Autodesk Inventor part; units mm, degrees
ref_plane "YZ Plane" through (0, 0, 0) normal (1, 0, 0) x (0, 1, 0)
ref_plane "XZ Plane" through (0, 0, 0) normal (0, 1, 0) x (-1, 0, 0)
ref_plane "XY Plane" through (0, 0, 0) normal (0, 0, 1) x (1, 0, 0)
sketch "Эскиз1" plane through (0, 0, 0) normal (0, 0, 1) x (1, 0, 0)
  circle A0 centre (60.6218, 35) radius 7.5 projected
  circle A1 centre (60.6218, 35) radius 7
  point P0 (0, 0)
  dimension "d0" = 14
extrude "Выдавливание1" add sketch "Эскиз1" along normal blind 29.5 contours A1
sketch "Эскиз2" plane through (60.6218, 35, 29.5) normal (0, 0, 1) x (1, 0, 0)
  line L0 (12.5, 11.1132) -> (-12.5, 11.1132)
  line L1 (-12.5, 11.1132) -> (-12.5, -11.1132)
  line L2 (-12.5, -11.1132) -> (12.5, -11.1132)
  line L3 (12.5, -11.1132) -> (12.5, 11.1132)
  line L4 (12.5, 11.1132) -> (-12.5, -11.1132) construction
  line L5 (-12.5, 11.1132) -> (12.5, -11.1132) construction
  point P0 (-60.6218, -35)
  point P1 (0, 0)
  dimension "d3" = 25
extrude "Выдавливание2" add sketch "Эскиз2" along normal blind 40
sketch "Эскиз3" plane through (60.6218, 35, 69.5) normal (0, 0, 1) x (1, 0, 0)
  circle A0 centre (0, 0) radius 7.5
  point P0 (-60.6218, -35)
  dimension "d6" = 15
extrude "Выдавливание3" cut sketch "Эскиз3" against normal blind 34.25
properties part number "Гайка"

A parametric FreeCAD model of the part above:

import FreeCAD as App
import Part
import Sketcher

V = App.Vector


def add_polygon(sketch, points):
    """Adds a closed chain of lines whose ends are joined by coincident constraints."""
    first, n = sketch.GeometryCount, len(points)
    for a, b in zip(points, points[1:] + points[:1]):
        sketch.addGeometry(Part.LineSegment(App.Vector(*a, 0), App.Vector(*b, 0)), False)
    for i in range(n):
        sketch.addConstraint(Sketcher.Constraint("Coincident", first + i, 2, first + (i + 1) % n, 1))

doc = App.newDocument("Part")
body = doc.addObject("PartDesign::Body", "Body")

# Sketch on XY plane
sketch1 = body.newObject("Sketcher::SketchObject", "Sketch")
sketch1.AttachmentSupport = (doc.getObject("XY_Plane"), [""])
sketch1.MapMode = "FlatFace"
sketch1.addGeometry(Part.Circle(V(61, 35, 0), V(0, 0, 1), 7), False)
sketch1.addConstraint(Sketcher.Constraint("Diameter", 0, 14.0))
sketch1.addConstraint(Sketcher.Constraint("DistanceY", -1, 1, 0, 3, 35.0))
sketch1.addConstraint(Sketcher.Constraint("DistanceX", -1, 1, 0, 3, 60.6218))
pad1 = body.newObject("PartDesign::Pad", "Pad")
pad1.Profile = sketch1
pad1.Length = 29.5

# Sketch on XY plane
sketch2 = body.newObject("Sketcher::SketchObject", "Sketch001")
sketch2.AttachmentSupport = (doc.getObject("XY_Plane"), [""])
sketch2.MapMode = "FlatFace"
sketch2.AttachmentOffset = App.Placement(V(0, 0, 29.5), App.Rotation())
add_polygon(sketch2, [(73, 24), (73, 46), (48, 46), (48, 24)])  # lines 0-3
sketch2.addConstraint(Sketcher.Constraint("Vertical", 0))
sketch2.addConstraint(Sketcher.Constraint("Horizontal", 1))
sketch2.addConstraint(Sketcher.Constraint("Vertical", 2))
sketch2.addConstraint(Sketcher.Constraint("Horizontal", 3))
sketch2.addConstraint(Sketcher.Constraint("DistanceX", 1, 2, 1, 1, 25.0))
sketch2.addConstraint(Sketcher.Constraint("DistanceY", 0, 1, 0, 2, 22.2264))
sketch2.addConstraint(Sketcher.Constraint("DistanceX", -1, 1, 0, 2, 73.1218))
sketch2.addConstraint(Sketcher.Constraint("DistanceY", -1, 1, 0, 2, 46.1132))
pad2 = body.newObject("PartDesign::Pad", "Pad001")
pad2.Profile = sketch2
pad2.Length = 40

# Sketch on XY plane
sketch3 = body.newObject("Sketcher::SketchObject", "Sketch002")
sketch3.AttachmentSupport = (doc.getObject("XY_Plane"), [""])
sketch3.MapMode = "FlatFace"
sketch3.AttachmentOffset = App.Placement(V(0, 0, 69.5), App.Rotation())
sketch3.addGeometry(Part.Circle(V(61, 35, 0), V(0, 0, 1), 8), False)
sketch3.addConstraint(Sketcher.Constraint("Diameter", 0, 15.0))
sketch3.addConstraint(Sketcher.Constraint("DistanceY", -1, 1, 0, 3, 35.0))
sketch3.addConstraint(Sketcher.Constraint("DistanceX", -1, 1, 0, 3, 60.6218))
pocket1 = body.newObject("PartDesign::Pocket", "Pocket")
pocket1.Profile = sketch3
pocket1.Length = 34.25

doc.recompute()
